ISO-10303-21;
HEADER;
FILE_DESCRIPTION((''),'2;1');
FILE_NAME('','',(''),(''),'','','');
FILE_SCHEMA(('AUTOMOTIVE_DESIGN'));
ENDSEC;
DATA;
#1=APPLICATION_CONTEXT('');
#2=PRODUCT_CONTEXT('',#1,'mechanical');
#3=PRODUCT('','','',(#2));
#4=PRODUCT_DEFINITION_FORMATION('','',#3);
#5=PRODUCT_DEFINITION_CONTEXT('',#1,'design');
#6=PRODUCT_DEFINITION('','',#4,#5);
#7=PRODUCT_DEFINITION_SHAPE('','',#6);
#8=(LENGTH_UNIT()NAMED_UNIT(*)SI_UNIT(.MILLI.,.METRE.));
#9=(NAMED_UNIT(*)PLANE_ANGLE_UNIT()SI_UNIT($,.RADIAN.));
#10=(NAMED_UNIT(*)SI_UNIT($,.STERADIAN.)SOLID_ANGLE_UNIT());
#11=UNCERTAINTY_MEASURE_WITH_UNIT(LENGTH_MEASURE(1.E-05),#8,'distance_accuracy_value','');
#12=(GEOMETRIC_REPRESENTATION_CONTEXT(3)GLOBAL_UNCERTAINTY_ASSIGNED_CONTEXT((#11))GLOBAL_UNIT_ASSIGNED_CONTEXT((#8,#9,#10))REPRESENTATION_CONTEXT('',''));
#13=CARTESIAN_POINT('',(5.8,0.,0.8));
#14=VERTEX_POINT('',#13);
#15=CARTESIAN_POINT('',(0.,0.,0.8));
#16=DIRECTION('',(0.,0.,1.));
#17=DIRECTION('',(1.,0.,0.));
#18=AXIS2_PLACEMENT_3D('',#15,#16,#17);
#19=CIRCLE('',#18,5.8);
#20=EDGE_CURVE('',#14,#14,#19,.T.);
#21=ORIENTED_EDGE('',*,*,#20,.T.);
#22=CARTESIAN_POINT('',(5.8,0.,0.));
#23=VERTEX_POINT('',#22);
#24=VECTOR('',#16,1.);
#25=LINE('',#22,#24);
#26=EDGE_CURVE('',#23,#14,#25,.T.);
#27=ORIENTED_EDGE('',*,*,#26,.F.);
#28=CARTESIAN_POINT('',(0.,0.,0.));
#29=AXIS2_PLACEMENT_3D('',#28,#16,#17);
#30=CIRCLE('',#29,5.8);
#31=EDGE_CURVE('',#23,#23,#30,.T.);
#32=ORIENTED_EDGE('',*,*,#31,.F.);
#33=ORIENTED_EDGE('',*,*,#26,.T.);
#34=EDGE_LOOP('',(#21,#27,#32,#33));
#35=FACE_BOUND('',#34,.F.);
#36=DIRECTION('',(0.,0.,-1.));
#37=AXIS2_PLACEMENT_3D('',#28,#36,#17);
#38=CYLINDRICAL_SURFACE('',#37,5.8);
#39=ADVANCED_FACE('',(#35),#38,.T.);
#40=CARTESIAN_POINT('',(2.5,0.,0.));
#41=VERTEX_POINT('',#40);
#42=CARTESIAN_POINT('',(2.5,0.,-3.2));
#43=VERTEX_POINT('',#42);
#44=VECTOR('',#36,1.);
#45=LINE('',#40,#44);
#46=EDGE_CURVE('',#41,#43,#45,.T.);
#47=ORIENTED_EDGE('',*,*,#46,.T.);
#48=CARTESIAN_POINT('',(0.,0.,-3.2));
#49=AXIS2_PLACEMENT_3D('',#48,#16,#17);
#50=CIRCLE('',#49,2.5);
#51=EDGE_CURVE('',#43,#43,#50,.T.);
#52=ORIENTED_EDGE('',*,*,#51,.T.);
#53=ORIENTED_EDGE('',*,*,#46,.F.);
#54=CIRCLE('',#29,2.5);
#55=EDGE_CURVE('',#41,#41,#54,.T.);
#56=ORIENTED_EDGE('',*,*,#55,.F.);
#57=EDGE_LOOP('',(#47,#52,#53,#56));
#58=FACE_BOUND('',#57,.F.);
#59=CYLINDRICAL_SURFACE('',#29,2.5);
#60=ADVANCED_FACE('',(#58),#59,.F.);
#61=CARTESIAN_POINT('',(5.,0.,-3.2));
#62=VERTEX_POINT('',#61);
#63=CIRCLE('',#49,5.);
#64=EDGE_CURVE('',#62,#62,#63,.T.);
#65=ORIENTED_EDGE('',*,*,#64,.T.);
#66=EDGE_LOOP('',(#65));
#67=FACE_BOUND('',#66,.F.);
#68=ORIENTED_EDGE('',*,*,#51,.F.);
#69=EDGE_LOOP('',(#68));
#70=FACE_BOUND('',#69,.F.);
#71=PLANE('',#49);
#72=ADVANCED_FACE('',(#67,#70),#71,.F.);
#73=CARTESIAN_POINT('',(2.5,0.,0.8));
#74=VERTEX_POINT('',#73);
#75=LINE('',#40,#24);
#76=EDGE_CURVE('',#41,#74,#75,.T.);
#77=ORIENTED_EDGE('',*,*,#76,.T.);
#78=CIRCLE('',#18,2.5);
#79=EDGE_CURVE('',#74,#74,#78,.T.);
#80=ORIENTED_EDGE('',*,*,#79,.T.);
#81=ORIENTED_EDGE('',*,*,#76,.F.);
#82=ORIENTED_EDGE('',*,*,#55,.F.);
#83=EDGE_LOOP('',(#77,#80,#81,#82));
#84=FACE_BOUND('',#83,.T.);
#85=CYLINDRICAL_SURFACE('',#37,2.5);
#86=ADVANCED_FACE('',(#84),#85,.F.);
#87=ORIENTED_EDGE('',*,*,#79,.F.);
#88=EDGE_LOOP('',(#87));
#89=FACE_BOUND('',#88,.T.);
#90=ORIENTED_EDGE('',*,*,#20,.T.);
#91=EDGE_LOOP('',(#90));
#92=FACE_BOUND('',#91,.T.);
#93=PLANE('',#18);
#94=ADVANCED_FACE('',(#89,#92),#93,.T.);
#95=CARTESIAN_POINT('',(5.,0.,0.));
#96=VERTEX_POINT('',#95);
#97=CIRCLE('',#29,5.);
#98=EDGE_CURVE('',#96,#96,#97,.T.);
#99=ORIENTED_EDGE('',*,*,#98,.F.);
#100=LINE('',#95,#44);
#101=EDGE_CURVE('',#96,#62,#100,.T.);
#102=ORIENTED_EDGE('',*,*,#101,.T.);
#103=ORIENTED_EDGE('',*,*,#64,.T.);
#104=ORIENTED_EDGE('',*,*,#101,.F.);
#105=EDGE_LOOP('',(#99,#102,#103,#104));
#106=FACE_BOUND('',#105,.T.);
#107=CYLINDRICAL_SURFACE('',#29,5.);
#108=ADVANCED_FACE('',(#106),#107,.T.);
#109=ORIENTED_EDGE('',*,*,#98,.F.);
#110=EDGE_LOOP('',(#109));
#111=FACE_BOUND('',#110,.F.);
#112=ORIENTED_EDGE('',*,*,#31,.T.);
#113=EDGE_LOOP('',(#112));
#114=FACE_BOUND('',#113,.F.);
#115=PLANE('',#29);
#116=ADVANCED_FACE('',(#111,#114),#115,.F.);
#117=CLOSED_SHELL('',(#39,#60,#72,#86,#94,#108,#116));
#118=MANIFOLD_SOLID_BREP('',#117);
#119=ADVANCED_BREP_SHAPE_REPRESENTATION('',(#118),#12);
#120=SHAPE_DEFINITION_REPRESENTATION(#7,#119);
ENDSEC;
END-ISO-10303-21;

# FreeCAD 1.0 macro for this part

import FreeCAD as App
import Part
import Sketcher

doc = App.newDocument("Part")
body = doc.addObject("PartDesign::Body", "Body")

# Sketch on XY plane
sketch1 = body.newObject("Sketcher::SketchObject", "Sketch")
sketch1.AttachmentSupport = (doc.getObject("XY_Plane"), [""])
sketch1.MapMode = "FlatFace"
sketch1.addGeometry(Part.Circle(App.Vector(0, 0, 0), App.Vector(0, 0, 1), 5.8), False)
sketch1.addGeometry(Part.Circle(App.Vector(0, 0, 0), App.Vector(0, 0, 1), 2.5), False)
sketch1.addConstraint(Sketcher.Constraint("Coincident", 0, 3, -1, 1))
sketch1.addConstraint(Sketcher.Constraint("Coincident", 1, 3, -1, 1))
sketch1.addConstraint(Sketcher.Constraint("Diameter", 1, 5.0))
sketch1.addConstraint(Sketcher.Constraint("Diameter", 0, 11.6))
pad1 = body.newObject("PartDesign::Pad", "Pad")
pad1.Profile = sketch1
pad1.Length = 0.8

# Sketch on XY plane
sketch2 = body.newObject("Sketcher::SketchObject", "Sketch001")
sketch2.AttachmentSupport = (doc.getObject("XY_Plane"), [""])
sketch2.MapMode = "FlatFace"
sketch2.addGeometry(Part.Circle(App.Vector(0, 0, 0), App.Vector(0, 0, 1), 5), False)
sketch2.addGeometry(Part.Circle(App.Vector(0, 0, 0), App.Vector(0, 0, 1), 2.5), False)
sketch2.addConstraint(Sketcher.Constraint("Coincident", 0, 3, -1, 1))
sketch2.addConstraint(Sketcher.Constraint("Coincident", 1, 3, -1, 1))
sketch2.addConstraint(Sketcher.Constraint("Diameter", 0, 10.0))
sketch2.addConstraint(Sketcher.Constraint("Diameter", 1, 5.0))
pad2 = body.newObject("PartDesign::Pad", "Pad001")
pad2.Profile = sketch2
pad2.Length = 3.2
pad2.Reversed = True

doc.recompute()
